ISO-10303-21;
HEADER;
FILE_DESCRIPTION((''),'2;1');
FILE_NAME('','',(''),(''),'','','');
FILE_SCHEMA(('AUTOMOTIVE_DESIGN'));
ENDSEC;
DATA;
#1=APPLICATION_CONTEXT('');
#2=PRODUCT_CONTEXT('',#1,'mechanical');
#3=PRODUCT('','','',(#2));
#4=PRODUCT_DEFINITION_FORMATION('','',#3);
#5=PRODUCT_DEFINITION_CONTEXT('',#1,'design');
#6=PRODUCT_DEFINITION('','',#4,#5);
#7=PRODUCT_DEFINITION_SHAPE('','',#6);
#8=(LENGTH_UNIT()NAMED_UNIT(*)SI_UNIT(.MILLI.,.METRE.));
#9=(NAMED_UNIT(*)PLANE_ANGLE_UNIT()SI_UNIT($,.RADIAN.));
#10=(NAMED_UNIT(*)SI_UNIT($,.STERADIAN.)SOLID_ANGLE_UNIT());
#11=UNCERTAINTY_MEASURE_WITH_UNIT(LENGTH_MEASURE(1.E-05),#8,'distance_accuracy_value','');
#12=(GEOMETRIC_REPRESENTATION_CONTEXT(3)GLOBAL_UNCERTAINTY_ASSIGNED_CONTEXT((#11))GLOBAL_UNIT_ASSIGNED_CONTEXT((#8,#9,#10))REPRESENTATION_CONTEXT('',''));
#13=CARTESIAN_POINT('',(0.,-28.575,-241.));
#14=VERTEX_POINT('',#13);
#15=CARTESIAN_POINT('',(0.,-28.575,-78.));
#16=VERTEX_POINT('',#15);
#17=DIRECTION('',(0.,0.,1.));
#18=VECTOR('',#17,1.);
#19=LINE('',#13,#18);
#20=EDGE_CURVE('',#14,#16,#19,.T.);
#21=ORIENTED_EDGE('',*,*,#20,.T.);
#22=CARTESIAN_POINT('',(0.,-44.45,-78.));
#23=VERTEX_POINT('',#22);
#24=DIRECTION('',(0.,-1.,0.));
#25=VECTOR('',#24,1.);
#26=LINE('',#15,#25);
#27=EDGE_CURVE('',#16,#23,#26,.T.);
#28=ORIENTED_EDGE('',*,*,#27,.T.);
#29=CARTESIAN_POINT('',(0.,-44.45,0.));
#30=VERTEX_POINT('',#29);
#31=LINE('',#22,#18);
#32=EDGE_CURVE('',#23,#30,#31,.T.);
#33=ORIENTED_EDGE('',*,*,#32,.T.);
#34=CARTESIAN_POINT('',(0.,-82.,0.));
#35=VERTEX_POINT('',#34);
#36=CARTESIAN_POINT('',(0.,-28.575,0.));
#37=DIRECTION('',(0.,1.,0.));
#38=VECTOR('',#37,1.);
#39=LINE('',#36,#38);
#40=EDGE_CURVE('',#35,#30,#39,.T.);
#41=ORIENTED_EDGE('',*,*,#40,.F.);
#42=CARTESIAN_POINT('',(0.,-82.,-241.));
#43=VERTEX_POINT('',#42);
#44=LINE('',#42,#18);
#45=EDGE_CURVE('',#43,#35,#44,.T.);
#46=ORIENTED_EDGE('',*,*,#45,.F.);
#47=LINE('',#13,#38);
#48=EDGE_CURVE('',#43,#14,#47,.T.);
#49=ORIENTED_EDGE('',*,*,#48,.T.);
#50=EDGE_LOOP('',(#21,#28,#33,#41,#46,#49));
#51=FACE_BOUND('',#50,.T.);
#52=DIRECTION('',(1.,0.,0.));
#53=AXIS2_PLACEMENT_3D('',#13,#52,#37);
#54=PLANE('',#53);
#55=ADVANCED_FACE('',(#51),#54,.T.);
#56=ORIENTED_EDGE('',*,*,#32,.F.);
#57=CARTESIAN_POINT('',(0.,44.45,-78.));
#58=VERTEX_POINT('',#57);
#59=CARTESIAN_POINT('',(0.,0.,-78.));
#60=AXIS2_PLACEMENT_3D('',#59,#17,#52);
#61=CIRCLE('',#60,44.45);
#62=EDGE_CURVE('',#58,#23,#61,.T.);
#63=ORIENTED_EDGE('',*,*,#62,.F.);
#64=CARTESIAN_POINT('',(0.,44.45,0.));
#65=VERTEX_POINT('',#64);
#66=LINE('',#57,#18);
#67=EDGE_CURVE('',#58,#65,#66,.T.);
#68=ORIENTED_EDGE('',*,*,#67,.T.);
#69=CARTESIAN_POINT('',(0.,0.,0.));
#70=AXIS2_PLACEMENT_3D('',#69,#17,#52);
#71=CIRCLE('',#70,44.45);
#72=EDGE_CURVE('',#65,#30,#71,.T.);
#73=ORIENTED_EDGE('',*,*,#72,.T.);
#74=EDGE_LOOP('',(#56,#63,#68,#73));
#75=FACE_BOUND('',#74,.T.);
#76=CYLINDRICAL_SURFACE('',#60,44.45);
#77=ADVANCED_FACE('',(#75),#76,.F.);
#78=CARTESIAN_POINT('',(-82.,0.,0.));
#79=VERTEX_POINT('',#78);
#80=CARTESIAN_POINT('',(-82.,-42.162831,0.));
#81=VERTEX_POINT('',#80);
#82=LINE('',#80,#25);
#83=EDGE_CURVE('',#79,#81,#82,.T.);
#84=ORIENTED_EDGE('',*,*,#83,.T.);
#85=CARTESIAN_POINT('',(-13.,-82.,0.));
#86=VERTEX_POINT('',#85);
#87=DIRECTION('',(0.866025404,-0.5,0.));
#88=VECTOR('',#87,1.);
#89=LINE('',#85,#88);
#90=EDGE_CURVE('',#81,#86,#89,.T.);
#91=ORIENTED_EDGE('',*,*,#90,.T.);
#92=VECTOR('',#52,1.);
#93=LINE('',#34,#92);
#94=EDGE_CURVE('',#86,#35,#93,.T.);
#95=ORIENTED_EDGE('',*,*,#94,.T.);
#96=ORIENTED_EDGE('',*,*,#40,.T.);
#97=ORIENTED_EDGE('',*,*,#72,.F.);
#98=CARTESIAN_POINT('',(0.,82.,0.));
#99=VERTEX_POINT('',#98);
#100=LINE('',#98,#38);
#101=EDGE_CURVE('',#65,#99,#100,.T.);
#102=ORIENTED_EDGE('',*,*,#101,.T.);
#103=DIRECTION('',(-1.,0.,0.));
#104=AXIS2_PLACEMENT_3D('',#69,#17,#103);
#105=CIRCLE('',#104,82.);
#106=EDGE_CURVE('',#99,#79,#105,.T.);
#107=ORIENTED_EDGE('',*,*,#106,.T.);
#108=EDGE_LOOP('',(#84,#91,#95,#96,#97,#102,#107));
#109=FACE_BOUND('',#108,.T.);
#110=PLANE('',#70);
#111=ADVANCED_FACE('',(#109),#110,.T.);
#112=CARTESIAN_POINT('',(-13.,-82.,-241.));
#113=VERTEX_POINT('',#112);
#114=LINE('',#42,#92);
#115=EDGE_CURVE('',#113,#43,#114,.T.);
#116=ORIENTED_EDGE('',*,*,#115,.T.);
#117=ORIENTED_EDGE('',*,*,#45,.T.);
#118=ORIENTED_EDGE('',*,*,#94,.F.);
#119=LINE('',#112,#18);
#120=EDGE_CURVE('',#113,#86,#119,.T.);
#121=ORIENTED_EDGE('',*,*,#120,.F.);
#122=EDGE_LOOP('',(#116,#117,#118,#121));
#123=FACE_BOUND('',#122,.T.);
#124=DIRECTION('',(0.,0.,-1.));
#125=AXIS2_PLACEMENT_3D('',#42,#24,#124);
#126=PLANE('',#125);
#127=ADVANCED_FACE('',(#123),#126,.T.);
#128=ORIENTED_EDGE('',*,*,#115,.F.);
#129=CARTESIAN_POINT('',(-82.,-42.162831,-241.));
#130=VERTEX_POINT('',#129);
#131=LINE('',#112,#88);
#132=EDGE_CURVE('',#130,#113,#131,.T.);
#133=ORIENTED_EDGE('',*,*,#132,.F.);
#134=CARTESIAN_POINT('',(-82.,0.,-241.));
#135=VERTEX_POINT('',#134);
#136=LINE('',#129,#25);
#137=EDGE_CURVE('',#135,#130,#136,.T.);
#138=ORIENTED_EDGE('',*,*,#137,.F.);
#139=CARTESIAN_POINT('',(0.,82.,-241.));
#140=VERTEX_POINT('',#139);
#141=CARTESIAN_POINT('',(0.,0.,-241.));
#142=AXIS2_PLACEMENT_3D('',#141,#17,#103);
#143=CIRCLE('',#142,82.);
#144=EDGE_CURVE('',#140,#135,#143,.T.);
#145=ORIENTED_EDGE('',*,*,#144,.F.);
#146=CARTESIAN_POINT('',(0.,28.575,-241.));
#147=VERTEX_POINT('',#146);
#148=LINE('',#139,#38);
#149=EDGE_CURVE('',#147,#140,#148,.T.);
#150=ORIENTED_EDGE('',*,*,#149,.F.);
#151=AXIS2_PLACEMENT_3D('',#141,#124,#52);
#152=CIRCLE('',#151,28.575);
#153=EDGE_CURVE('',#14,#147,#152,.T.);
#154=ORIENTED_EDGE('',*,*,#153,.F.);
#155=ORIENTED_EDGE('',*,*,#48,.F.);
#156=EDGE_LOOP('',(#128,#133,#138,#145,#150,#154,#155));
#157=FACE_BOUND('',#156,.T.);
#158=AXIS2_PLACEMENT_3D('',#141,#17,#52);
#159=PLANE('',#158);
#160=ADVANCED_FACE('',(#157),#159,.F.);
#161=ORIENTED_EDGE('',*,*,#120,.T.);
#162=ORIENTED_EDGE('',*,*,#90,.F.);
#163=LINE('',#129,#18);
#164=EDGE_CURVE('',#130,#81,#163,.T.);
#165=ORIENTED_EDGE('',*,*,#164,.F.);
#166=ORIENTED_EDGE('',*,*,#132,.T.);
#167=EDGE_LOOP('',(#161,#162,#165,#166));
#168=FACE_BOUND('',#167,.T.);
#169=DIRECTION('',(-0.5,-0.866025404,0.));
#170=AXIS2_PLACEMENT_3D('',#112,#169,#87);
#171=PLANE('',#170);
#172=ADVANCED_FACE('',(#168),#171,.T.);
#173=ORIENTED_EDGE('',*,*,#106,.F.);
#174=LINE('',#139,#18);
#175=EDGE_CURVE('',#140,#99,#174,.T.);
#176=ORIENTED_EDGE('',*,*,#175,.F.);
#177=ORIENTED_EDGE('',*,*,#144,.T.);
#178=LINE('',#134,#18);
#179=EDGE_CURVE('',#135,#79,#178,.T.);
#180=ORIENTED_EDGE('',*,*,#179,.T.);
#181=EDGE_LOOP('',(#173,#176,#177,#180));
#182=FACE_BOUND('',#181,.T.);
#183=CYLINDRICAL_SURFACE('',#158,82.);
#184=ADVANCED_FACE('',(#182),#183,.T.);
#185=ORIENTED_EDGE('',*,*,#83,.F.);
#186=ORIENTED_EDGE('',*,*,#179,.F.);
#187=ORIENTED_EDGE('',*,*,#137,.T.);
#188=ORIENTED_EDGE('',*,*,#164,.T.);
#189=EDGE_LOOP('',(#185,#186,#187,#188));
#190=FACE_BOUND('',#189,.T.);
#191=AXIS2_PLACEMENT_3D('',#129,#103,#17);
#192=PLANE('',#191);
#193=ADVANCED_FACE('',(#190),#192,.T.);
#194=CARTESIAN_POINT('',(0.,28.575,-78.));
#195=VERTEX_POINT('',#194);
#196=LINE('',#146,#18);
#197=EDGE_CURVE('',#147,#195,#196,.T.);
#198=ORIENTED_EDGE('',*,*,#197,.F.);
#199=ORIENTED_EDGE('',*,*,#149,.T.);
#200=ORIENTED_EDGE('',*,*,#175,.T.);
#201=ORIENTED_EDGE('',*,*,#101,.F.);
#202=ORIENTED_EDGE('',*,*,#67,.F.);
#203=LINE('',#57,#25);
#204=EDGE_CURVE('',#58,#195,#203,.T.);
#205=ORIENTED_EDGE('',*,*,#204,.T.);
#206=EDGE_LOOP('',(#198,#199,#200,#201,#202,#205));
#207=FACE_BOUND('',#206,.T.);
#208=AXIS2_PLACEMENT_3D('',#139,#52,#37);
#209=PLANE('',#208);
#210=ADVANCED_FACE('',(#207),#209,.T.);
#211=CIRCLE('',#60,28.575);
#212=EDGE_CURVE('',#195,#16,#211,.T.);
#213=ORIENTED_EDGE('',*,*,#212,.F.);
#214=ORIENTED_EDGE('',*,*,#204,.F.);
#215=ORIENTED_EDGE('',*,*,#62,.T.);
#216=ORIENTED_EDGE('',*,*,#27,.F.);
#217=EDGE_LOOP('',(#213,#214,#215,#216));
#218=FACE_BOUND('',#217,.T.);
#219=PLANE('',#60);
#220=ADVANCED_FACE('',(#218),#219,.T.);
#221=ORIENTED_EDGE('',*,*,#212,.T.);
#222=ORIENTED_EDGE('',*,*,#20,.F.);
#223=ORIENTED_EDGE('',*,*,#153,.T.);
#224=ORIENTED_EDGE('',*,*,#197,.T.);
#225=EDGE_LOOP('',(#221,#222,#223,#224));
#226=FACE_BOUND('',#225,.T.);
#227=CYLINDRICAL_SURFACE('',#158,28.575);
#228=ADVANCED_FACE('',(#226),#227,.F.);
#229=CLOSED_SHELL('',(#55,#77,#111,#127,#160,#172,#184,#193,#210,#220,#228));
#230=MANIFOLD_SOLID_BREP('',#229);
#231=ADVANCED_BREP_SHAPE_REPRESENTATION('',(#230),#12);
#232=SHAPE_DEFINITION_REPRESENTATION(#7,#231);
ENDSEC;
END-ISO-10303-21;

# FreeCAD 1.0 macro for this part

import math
import FreeCAD as App
import Part
import Sketcher
from FreeCAD import Vector
Q = App.Units.Quantity

doc = App.newDocument("Part")
body = doc.addObject("PartDesign::Body", "Body")

# Sketch on XY plane
sketch1 = body.newObject("Sketcher::SketchObject", "Sketch")
sketch1.AttachmentSupport = (doc.getObject("XY_Plane"), [""])
sketch1.MapMode = "FlatFace"
sketch1.addGeometry(Part.LineSegment(Vector(0, -82, 0), Vector(0, -29, 0)), False)
sketch1.addGeometry(Part.ArcOfCircle(Part.Circle(Vector(0, 0, 0), Vector(0, 0, 1), 29), math.radians(90), math.radians(270)), False)
sketch1.addGeometry(Part.LineSegment(Vector(0, 29, 0), Vector(0, 82, 0)), False)
sketch1.addGeometry(Part.ArcOfCircle(Part.Circle(Vector(0, 0, 0), Vector(0, 0, 1), 82), math.radians(90), math.radians(180)), False)
sketch1.addGeometry(Part.LineSegment(Vector(-82, 0, 0), Vector(-82, -42, 0)), False)
sketch1.addGeometry(Part.LineSegment(Vector(-82, -42, 0), Vector(-13, -82, 0)), False)
sketch1.addGeometry(Part.LineSegment(Vector(-13, -82, 0), Vector(0, -82, 0)), False)
sketch1.addConstraint(Sketcher.Constraint("Coincident", 0, 2, 1, 2))
sketch1.addConstraint(Sketcher.Constraint("Coincident", 1, 1, 2, 1))
sketch1.addConstraint(Sketcher.Constraint("Coincident", 2, 2, 3, 1))
sketch1.addConstraint(Sketcher.Constraint("Tangent", 3, 2, 4, 1))
sketch1.addConstraint(Sketcher.Constraint("Coincident", 4, 2, 5, 1))
sketch1.addConstraint(Sketcher.Constraint("Coincident", 5, 2, 6, 1))
sketch1.addConstraint(Sketcher.Constraint("Coincident", 6, 2, 0, 1))
sketch1.addConstraint(Sketcher.Constraint("Vertical", 0))
sketch1.addConstraint(Sketcher.Constraint("Vertical", 2))
sketch1.addConstraint(Sketcher.Constraint("Vertical", 4))
sketch1.addConstraint(Sketcher.Constraint("Horizontal", 6))
sketch1.addConstraint(Sketcher.Constraint("Coincident", 1, 3, -1, 1))
sketch1.addConstraint(Sketcher.Constraint("Coincident", 3, 3, -1, 1))
sketch1.addConstraint(Sketcher.Constraint("Symmetric", 2, 2, 6, 2, -1, 1))
sketch1.addConstraint(Sketcher.Constraint("PointOnObject", 0, 2, -2))
sketch1.addConstraint(Sketcher.Constraint("Radius", 3, Q("82 mm")))
sketch1.addConstraint(Sketcher.Constraint("DistanceX", 6, 1, 6, 2, Q("13 mm")))
sketch1.addConstraint(Sketcher.Constraint("Angle", 5, Q("-30 deg")))
sketch1.addConstraint(Sketcher.Constraint("Radius", 1, Q("28.575 mm")))
pad1 = body.newObject("PartDesign::Pad", "Pad")
pad1.Profile = sketch1
pad1.Length = 241
pad1.Reversed = True

# Sketch on XY plane
sketch2 = body.newObject("Sketcher::SketchObject", "Sketch001")
sketch2.AttachmentSupport = (doc.getObject("XY_Plane"), [""])
sketch2.MapMode = "FlatFace"
sketch2.addGeometry(Part.LineSegment(Vector(0, 29, 0), Vector(0, 44, 0)), False)
sketch2.addGeometry(Part.ArcOfCircle(Part.Circle(Vector(0, 0, 0), Vector(0, 0, 1), 44), math.radians(90), math.radians(270)), False)
sketch2.addGeometry(Part.LineSegment(Vector(0, -44, 0), Vector(0, -29, 0)), False)
sketch2.addGeometry(Part.ArcOfCircle(Part.Circle(Vector(0, 0, 0), Vector(0, 0, 1), 29), math.radians(90), math.radians(270)), False)
sketch2.addConstraint(Sketcher.Constraint("Coincident", 0, 2, 1, 1))
sketch2.addConstraint(Sketcher.Constraint("Coincident", 1, 2, 2, 1))
sketch2.addConstraint(Sketcher.Constraint("Coincident", 2, 2, 3, 2))
sketch2.addConstraint(Sketcher.Constraint("Coincident", 3, 1, 0, 1))
sketch2.addConstraint(Sketcher.Constraint("Vertical", 0))
sketch2.addConstraint(Sketcher.Constraint("Vertical", 2))
sketch2.addConstraint(Sketcher.Constraint("Coincident", 1, 3, -1, 1))
sketch2.addConstraint(Sketcher.Constraint("Coincident", 3, 3, -1, 1))
sketch2.addConstraint(Sketcher.Constraint("PointOnObject", 0, 2, -2))
sketch2.addConstraint(Sketcher.Constraint("PointOnObject", 1, 2, -2))
sketch2.addConstraint(Sketcher.Constraint("Radius", 1, Q("44.45 mm")))
sketch2.addConstraint(Sketcher.Constraint("Radius", 3, Q("28.575 mm")))
pocket1 = body.newObject("PartDesign::Pocket", "Pocket")
pocket1.Profile = sketch2
pocket1.Length = 78

doc.recompute()
